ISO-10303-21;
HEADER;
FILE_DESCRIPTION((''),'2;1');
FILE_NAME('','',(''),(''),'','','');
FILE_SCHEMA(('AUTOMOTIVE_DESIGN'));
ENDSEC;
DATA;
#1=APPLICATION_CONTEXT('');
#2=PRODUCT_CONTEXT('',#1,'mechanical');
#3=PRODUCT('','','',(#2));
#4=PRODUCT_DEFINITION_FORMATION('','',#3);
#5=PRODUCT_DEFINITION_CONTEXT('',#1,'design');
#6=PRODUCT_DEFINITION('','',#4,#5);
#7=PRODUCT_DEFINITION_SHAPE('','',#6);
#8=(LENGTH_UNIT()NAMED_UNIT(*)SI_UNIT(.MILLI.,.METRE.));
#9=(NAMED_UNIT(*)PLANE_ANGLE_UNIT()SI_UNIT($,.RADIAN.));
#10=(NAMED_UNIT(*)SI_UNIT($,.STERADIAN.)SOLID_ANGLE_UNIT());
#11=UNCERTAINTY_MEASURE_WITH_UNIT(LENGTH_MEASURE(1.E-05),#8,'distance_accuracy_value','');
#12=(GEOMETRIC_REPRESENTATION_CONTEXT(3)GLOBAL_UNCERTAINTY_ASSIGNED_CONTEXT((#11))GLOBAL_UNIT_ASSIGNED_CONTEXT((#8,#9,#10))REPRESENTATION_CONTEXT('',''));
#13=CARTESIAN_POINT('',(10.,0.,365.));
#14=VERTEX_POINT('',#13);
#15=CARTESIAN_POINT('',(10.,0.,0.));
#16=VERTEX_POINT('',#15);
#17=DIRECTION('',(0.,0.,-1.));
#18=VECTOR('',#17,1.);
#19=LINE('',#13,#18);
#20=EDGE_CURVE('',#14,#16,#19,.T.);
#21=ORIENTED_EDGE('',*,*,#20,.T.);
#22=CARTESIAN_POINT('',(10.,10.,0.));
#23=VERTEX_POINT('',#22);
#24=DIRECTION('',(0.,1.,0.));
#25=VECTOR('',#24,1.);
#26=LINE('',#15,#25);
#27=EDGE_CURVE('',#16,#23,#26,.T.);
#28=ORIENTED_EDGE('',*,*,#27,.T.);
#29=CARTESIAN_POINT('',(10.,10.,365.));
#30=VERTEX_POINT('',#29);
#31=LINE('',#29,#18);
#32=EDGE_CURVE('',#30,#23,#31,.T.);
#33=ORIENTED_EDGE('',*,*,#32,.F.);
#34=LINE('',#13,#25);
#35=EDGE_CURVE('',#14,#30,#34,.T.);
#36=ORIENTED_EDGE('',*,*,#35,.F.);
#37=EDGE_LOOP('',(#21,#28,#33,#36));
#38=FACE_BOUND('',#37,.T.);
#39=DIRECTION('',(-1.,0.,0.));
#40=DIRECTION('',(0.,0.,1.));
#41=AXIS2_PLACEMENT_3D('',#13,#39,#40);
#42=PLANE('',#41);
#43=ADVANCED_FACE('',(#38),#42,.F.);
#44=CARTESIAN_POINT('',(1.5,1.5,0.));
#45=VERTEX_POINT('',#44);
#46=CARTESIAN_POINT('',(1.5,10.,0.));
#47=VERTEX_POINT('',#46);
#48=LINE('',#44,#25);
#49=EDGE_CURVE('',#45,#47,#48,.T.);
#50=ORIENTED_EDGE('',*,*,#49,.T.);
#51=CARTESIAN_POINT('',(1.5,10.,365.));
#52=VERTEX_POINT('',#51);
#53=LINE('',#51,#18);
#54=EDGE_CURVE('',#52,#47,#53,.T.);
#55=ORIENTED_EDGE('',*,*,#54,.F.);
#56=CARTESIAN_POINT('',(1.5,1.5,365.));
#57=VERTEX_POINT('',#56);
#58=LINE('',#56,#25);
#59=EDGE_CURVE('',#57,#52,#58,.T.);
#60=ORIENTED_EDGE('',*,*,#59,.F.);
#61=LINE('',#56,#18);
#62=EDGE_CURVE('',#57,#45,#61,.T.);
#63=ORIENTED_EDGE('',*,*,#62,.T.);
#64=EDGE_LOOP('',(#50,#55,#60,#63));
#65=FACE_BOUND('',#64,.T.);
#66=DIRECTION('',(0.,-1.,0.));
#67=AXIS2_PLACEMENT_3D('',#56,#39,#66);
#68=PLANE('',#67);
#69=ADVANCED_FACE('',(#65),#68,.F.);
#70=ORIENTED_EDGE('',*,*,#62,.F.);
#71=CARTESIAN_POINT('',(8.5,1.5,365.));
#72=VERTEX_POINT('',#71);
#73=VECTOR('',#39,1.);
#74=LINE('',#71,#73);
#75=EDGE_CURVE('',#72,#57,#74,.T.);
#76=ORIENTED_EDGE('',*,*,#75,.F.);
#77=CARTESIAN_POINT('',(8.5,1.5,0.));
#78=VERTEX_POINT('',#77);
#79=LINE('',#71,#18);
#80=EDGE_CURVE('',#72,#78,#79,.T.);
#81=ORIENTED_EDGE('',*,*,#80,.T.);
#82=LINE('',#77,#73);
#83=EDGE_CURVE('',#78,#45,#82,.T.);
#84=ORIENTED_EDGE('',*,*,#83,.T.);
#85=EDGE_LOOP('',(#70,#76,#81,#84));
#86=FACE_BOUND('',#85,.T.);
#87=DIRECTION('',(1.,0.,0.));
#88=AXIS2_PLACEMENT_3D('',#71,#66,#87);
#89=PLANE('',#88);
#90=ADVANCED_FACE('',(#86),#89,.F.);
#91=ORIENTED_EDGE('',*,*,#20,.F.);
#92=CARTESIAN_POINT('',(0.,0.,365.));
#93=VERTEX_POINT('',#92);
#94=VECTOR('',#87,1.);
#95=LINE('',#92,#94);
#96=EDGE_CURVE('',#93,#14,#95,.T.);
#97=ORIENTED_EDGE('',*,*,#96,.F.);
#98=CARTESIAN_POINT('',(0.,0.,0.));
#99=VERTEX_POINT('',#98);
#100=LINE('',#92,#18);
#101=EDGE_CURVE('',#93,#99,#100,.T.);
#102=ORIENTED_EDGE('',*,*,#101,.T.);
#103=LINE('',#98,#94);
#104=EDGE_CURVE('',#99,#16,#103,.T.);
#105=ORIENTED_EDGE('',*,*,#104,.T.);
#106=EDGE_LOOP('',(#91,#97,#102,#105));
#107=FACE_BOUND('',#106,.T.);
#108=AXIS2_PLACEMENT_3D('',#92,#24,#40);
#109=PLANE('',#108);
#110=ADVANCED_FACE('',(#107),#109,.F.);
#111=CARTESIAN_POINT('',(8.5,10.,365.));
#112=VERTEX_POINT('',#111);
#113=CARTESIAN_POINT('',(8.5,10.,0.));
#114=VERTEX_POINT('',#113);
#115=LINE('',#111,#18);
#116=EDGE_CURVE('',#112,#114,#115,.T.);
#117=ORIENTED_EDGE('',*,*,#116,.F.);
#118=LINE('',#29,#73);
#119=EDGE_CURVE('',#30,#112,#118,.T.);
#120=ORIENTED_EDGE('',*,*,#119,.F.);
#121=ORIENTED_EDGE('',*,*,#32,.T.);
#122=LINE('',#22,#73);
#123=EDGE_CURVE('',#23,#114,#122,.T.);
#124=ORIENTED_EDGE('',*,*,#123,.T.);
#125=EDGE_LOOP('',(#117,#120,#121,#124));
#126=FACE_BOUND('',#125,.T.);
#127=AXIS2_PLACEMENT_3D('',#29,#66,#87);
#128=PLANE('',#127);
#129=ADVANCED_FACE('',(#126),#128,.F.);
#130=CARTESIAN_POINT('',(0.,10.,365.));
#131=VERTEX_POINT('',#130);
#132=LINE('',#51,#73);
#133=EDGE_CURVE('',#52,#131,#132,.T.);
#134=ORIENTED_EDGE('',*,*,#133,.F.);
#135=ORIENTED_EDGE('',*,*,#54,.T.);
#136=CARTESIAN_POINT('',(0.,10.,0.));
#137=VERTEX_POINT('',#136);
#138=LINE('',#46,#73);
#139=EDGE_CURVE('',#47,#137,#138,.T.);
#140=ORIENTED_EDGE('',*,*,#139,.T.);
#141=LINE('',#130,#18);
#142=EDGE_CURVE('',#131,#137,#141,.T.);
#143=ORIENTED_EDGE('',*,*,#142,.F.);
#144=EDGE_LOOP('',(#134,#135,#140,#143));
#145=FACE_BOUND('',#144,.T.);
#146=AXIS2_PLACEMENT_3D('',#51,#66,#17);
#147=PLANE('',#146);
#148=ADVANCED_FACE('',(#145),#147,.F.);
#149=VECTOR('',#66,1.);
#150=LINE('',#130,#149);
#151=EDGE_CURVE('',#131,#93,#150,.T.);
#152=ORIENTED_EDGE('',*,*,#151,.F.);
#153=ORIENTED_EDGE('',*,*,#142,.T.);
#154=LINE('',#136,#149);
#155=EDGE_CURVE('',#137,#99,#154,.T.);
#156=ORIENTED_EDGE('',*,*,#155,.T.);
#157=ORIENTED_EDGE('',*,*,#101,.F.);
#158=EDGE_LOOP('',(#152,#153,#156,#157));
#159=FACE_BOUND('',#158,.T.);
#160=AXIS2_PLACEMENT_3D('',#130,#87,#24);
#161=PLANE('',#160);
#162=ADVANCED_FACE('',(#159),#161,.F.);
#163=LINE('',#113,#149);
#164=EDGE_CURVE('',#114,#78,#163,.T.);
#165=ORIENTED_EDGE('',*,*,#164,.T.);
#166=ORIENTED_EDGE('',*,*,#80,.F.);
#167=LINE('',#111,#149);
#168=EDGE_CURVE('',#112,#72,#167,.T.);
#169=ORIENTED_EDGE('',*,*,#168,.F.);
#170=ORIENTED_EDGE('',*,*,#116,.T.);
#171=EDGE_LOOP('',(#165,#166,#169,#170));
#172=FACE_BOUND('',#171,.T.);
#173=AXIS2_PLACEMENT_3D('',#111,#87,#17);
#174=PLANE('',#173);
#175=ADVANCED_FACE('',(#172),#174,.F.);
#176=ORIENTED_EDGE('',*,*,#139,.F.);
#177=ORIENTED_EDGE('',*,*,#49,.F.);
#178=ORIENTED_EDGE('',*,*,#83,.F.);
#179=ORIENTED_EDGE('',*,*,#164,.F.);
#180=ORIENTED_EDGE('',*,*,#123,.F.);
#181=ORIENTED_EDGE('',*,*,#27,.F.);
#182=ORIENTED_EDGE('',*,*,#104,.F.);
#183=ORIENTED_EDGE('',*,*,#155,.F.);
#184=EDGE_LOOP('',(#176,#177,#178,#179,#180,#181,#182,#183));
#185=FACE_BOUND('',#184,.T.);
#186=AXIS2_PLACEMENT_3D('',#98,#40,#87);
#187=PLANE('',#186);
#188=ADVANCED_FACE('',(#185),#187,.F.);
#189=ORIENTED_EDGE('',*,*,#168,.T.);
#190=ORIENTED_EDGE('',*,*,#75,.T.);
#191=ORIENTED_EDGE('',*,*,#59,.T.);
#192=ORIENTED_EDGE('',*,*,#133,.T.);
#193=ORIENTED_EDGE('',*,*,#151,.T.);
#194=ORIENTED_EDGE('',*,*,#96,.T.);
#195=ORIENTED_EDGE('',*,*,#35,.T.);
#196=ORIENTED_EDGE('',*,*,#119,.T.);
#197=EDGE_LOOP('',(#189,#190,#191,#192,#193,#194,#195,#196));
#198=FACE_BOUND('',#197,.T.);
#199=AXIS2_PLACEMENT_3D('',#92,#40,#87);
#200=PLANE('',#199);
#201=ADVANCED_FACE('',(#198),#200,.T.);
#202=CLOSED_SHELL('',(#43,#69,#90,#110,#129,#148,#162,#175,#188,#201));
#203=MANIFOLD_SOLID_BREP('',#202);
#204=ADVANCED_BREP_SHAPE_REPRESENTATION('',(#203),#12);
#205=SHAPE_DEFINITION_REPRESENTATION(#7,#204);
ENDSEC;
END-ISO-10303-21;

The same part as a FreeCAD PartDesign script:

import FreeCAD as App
import Part
import Sketcher

V = App.Vector


def add_polygon(sketch, points):
    """Adds a closed chain of lines whose ends are joined by coincident constraints."""
    first, n = sketch.GeometryCount, len(points)
    for a, b in zip(points, points[1:] + points[:1]):
        sketch.addGeometry(Part.LineSegment(App.Vector(*a, 0), App.Vector(*b, 0)), False)
    for i in range(n):
        sketch.addConstraint(Sketcher.Constraint("Coincident", first + i, 2, first + (i + 1) % n, 1))

doc = App.newDocument("Part")
body = doc.addObject("PartDesign::Body", "Body")

sketch1 = body.newObject("Sketcher::SketchObject", "Sketch")
sketch1.AttachmentSupport = (doc.getObject("XY_Plane"), [""])
sketch1.MapMode = "FlatFace"
add_polygon(sketch1, [(0, 0), (10, 0), (10, 10), (8.5, 10), (8.5, 1.5), (1.5, 1.5), (1.5, 10), (0, 10)])
sketch1.addConstraint(Sketcher.Constraint("Horizontal", 0))
sketch1.addConstraint(Sketcher.Constraint("Vertical", 1))
sketch1.addConstraint(Sketcher.Constraint("Horizontal", 2))
sketch1.addConstraint(Sketcher.Constraint("Vertical", 3))
sketch1.addConstraint(Sketcher.Constraint("Horizontal", 4))
sketch1.addConstraint(Sketcher.Constraint("Vertical", 5))
sketch1.addConstraint(Sketcher.Constraint("Horizontal", 6))
sketch1.addConstraint(Sketcher.Constraint("Vertical", 7))
sketch1.addConstraint(Sketcher.Constraint("Coincident", 7, 2, -1, 1))
sketch1.addConstraint(Sketcher.Constraint("Horizontal", 2, 2, 5, 2))
sketch1.addConstraint(Sketcher.Constraint("Equal", 2, 6))
sketch1.addConstraint(Sketcher.Constraint("Equal", 0, 1))
sketch1.addConstraint(Sketcher.Constraint("DistanceX", 0, 1, 0, 2, 10.0))
sketch1.addConstraint(Sketcher.Constraint("DistanceX", 4, 2, 4, 1, 7.0))
sketch1.addConstraint(Sketcher.Constraint("DistanceY", 3, 2, 3, 1, 8.5))
pad1 = body.newObject("PartDesign::Pad", "Pad")
pad1.Profile = sketch1
pad1.Length = 365

doc.recompute()
